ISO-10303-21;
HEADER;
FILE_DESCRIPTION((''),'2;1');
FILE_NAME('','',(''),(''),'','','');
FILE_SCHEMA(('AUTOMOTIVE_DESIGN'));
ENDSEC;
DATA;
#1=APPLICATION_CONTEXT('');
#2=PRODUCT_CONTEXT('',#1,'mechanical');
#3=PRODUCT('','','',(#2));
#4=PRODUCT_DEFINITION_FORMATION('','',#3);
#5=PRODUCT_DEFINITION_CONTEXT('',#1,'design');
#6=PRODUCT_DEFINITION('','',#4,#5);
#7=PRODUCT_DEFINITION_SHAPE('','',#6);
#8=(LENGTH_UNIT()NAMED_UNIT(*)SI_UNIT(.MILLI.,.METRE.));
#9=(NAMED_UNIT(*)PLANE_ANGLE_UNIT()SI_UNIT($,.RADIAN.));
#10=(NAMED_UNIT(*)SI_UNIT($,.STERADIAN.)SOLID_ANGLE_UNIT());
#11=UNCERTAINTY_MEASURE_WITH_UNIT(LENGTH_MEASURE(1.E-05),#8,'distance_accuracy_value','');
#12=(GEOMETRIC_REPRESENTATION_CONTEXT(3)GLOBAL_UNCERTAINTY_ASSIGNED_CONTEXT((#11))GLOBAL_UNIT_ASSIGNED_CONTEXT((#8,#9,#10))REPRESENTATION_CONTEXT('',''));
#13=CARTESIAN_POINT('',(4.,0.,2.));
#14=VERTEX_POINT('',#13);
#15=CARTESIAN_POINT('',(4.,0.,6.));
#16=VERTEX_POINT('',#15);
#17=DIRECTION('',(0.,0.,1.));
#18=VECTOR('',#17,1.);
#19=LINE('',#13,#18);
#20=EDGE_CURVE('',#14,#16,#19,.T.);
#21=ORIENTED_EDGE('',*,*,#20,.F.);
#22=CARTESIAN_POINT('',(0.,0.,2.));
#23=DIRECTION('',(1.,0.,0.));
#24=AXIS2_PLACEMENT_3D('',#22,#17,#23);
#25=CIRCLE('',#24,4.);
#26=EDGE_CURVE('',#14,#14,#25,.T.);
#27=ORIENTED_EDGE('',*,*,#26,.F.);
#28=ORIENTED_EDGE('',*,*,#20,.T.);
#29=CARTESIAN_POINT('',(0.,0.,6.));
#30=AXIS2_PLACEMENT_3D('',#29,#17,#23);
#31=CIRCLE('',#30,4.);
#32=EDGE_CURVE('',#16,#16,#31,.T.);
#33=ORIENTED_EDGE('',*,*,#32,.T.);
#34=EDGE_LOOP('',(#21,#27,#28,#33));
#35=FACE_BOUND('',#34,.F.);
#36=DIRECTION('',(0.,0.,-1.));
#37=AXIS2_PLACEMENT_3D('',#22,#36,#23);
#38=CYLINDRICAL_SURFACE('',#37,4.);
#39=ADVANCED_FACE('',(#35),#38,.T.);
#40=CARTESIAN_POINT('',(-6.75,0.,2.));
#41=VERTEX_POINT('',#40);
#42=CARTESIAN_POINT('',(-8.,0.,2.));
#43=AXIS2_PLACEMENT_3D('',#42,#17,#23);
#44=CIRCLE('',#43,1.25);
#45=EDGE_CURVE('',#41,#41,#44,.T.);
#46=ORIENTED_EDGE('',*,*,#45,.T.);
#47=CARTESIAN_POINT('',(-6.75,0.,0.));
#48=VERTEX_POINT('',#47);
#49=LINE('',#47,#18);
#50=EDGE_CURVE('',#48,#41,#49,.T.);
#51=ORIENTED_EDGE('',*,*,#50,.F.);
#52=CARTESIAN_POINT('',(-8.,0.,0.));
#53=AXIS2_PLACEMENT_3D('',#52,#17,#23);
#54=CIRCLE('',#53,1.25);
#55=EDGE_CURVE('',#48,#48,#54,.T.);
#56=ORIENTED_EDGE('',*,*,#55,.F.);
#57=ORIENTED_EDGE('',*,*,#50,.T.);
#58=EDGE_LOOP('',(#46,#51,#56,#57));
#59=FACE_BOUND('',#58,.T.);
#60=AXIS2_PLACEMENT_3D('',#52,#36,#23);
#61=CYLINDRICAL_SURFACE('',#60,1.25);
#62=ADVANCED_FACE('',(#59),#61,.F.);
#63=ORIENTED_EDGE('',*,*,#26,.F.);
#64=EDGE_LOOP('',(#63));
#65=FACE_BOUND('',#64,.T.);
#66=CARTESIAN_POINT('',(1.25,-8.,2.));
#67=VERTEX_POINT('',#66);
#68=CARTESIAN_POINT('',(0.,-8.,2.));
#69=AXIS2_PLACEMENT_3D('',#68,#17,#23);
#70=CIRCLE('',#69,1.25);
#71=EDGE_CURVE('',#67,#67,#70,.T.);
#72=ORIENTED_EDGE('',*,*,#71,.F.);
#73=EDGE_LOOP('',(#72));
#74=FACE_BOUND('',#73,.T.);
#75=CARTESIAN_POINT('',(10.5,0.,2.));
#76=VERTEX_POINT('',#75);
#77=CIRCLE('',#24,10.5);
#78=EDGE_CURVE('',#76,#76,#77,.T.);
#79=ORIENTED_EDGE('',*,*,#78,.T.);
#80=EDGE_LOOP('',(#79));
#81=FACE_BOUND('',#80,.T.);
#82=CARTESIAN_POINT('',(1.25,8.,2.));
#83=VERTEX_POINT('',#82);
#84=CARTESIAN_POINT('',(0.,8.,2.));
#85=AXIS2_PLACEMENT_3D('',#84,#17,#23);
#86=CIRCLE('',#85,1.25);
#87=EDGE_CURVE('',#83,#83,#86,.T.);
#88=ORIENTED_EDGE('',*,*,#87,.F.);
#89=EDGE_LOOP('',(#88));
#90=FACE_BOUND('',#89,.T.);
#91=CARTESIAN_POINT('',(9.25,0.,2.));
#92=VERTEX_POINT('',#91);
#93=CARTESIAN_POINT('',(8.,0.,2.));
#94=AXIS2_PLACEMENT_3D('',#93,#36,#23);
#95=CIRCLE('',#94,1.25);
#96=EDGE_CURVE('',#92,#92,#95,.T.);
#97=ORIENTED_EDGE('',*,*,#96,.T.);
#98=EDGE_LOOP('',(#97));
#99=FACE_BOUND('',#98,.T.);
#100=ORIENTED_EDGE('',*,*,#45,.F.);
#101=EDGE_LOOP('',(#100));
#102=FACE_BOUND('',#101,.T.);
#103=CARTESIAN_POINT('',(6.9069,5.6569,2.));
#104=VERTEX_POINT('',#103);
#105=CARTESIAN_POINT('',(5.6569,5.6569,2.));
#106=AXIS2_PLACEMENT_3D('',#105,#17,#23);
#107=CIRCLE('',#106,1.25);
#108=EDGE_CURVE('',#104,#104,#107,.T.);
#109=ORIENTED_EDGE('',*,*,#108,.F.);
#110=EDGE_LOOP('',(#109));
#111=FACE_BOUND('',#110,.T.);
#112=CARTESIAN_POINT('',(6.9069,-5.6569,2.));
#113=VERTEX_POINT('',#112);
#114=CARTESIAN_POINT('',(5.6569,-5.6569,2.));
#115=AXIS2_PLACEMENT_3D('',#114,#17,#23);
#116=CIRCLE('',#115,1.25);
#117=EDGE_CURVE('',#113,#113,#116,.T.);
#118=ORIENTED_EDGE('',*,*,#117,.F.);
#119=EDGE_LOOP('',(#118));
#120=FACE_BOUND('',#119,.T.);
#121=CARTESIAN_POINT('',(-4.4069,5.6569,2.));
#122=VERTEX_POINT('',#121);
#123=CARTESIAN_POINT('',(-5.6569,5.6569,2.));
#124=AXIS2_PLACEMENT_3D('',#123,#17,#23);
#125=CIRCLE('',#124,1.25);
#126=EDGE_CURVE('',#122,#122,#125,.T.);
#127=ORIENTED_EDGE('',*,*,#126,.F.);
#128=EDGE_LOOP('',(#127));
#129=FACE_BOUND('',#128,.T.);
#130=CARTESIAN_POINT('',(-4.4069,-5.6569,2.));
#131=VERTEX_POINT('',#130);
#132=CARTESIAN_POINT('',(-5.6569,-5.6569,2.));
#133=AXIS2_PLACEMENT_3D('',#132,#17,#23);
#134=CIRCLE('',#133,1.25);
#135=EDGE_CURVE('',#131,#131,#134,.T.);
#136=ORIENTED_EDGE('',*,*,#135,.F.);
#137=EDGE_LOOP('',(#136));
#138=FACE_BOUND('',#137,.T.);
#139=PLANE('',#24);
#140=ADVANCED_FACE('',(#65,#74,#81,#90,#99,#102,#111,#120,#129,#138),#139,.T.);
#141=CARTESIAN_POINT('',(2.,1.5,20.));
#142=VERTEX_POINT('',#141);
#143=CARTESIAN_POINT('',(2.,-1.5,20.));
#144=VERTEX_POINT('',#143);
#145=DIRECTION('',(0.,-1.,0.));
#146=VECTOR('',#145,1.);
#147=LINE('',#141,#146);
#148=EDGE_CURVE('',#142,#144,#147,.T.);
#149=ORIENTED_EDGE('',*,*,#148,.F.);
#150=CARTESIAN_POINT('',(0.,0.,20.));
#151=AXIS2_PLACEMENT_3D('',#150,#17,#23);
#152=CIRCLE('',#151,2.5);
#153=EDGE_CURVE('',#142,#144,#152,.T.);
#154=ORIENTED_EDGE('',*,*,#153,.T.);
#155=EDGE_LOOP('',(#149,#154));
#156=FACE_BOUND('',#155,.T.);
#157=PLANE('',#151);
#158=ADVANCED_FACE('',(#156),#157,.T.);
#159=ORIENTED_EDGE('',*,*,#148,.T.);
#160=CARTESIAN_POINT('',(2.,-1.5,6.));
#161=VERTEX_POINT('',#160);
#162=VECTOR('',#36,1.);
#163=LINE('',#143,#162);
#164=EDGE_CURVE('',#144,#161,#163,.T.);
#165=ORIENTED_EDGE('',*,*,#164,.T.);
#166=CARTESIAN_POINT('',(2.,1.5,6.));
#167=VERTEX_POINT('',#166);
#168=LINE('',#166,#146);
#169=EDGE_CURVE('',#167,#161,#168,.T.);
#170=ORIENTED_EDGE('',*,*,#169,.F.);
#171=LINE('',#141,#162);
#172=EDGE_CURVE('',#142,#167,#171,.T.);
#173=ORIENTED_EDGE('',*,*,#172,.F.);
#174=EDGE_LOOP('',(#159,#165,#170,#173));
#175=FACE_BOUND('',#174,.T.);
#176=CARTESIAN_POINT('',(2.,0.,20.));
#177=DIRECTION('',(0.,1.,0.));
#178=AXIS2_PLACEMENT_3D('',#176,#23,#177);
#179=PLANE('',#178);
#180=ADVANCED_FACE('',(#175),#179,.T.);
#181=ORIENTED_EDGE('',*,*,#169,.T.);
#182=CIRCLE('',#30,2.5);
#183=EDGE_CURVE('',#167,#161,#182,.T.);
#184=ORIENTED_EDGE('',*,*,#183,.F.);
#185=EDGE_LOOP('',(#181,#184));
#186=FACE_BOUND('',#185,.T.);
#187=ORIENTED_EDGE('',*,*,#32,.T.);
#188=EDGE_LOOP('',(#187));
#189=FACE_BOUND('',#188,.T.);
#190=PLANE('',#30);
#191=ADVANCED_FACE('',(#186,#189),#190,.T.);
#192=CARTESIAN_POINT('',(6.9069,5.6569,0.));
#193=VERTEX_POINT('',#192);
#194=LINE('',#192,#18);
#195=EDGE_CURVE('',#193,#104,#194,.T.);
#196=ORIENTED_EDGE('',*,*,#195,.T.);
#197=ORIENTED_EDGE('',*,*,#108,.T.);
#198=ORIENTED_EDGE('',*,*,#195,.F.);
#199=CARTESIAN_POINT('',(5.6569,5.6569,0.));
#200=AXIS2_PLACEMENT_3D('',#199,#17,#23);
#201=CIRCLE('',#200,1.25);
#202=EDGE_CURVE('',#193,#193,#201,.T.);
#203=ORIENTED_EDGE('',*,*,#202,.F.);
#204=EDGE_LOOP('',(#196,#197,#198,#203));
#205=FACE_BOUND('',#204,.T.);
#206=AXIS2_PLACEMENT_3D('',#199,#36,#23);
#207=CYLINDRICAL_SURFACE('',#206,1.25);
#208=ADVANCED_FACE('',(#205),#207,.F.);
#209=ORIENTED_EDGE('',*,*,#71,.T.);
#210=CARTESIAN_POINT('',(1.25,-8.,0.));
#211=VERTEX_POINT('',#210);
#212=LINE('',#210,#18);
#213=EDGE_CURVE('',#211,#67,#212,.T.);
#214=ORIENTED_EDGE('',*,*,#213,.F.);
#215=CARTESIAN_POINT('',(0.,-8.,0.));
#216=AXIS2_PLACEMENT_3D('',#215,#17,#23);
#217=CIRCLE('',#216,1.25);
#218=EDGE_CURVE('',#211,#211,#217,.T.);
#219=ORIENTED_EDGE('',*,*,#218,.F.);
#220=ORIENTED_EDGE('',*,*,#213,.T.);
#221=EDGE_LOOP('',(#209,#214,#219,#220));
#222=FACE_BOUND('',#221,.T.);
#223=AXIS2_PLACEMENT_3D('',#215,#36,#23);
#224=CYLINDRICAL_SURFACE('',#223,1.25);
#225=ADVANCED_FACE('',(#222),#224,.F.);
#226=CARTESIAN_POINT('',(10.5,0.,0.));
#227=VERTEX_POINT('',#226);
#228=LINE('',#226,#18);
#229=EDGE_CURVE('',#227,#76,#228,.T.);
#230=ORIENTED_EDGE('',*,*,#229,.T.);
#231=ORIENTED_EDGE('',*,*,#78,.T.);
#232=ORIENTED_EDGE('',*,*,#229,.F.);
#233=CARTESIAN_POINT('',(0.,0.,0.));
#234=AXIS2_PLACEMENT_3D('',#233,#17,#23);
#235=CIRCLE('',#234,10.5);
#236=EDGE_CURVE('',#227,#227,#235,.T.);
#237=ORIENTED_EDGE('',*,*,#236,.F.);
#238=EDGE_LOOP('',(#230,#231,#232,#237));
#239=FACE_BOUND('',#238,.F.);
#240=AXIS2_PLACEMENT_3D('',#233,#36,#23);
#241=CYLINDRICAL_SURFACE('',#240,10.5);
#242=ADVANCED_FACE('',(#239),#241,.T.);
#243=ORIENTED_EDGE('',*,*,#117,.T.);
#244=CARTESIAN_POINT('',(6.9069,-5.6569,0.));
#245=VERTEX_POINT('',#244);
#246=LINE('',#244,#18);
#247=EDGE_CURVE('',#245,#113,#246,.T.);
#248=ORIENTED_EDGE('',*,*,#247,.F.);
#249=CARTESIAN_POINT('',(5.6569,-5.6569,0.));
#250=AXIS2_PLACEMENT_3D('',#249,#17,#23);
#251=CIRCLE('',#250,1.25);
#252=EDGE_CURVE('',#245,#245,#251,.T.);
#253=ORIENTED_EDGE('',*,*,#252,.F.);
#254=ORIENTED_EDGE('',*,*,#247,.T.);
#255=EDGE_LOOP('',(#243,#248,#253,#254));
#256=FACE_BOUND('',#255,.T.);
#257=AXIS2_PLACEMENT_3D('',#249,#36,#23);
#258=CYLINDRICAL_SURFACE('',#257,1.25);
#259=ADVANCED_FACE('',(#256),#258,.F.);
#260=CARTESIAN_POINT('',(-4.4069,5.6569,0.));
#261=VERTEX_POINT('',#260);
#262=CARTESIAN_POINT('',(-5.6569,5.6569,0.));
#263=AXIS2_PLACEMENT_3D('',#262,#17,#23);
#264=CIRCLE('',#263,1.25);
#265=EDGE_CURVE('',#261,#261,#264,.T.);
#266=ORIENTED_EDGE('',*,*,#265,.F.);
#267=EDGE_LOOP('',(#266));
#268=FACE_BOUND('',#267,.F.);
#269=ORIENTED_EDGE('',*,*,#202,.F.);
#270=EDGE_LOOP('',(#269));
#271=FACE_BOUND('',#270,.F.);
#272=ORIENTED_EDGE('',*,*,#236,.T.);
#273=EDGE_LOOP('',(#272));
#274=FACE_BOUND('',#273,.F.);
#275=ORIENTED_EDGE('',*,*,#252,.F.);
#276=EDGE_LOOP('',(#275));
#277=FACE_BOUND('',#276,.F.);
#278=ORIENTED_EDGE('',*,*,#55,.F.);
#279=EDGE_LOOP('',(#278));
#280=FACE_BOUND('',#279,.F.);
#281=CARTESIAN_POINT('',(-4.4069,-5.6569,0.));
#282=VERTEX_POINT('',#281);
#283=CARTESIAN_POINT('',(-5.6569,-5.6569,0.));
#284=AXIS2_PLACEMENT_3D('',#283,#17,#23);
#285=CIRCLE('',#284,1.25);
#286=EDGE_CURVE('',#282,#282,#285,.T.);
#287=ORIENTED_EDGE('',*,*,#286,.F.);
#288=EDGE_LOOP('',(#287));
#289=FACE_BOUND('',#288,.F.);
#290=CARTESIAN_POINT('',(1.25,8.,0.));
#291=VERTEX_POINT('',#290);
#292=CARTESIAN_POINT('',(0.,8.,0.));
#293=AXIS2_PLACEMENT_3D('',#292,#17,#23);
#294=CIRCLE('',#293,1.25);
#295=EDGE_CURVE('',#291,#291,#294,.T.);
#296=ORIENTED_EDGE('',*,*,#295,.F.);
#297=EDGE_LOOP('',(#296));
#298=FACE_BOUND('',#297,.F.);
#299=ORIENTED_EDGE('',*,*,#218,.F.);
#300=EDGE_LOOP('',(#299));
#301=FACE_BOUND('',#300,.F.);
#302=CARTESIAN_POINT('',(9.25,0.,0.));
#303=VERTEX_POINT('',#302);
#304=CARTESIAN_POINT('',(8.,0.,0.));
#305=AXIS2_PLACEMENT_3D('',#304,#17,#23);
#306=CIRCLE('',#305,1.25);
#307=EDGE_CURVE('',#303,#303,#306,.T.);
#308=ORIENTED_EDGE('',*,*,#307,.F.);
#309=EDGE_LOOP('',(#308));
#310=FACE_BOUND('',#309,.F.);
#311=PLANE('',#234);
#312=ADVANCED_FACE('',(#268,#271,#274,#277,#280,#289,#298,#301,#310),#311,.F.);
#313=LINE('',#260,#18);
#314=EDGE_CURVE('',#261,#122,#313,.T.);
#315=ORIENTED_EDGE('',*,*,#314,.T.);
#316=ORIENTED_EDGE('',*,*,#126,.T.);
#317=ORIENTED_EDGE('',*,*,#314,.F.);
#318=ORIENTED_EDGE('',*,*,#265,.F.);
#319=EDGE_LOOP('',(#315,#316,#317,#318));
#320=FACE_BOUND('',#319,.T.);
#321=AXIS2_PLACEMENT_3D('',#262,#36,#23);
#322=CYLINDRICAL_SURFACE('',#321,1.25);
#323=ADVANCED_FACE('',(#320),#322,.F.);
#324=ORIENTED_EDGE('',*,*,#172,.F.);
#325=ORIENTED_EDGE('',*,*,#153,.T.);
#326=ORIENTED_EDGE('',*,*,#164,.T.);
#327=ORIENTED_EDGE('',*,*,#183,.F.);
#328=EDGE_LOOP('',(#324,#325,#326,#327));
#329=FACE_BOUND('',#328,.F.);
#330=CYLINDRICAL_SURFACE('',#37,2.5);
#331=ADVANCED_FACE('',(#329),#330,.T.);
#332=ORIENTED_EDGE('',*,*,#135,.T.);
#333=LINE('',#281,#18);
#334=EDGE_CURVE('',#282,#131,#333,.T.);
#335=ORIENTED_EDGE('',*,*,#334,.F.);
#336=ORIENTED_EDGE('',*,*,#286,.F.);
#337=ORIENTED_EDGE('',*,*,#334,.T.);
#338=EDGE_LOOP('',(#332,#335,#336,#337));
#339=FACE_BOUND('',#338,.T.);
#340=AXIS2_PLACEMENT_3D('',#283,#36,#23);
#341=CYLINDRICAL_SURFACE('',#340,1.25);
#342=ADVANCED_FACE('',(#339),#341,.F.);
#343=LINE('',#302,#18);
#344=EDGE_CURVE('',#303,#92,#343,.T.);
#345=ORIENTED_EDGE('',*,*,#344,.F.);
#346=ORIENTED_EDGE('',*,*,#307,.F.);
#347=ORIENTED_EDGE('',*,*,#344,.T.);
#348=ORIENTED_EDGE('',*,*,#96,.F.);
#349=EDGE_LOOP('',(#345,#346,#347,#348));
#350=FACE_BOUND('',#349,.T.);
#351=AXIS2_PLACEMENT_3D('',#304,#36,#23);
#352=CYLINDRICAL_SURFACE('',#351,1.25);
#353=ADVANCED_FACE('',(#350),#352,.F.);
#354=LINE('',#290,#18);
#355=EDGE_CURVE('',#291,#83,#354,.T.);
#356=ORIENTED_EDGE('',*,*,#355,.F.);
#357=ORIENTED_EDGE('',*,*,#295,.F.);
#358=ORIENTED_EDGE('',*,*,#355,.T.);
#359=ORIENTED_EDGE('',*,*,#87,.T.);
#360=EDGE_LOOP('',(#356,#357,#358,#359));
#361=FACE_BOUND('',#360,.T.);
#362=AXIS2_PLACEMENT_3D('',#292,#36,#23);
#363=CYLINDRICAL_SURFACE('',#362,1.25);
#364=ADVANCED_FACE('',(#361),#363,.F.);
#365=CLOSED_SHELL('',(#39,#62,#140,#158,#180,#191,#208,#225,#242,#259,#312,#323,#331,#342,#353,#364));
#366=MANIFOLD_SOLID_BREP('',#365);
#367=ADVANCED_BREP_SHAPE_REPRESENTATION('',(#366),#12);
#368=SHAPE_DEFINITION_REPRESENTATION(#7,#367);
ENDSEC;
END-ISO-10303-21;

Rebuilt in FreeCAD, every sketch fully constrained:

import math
import FreeCAD as App
import Part
import Sketcher
from FreeCAD import Vector

doc = App.newDocument("Part")
body = doc.addObject("PartDesign::Body", "Body")

# Sketch on XY plane
sketch1 = body.newObject("Sketcher::SketchObject", "Sketch")
sketch1.AttachmentSupport = (doc.getObject("XY_Plane"), [""])
sketch1.MapMode = "FlatFace"
sketch1.addGeometry(Part.Circle(Vector(0, 0, 0), Vector(0, 0, 1), 10.5), False)
sketch1.addGeometry(Part.Circle(Vector(-5.7, -5.7, 0), Vector(0, 0, 1), 1.2), False)
sketch1.addGeometry(Part.Circle(Vector(0, -8, 0), Vector(0, 0, 1), 1.2), False)
sketch1.addGeometry(Part.Circle(Vector(5.7, -5.7, 0), Vector(0, 0, 1), 1.2), False)
sketch1.addGeometry(Part.Circle(Vector(-8, 0, 0), Vector(0, 0, 1), 1.2), False)
sketch1.addGeometry(Part.Circle(Vector(-5.7, 5.7, 0), Vector(0, 0, 1), 1.2), False)
sketch1.addGeometry(Part.Circle(Vector(8, 0, 0), Vector(0, 0, 1), 1.2), False)
sketch1.addGeometry(Part.Circle(Vector(0, 8, 0), Vector(0, 0, 1), 1.2), False)
sketch1.addGeometry(Part.Circle(Vector(5.7, 5.7, 0), Vector(0, 0, 1), 1.2), False)
sketch1.addConstraint(Sketcher.Constraint("Coincident", 0, 3, -1, 1))
sketch1.addConstraint(Sketcher.Constraint("Equal", 1, 2))
sketch1.addConstraint(Sketcher.Constraint("Equal", 2, 3))
sketch1.addConstraint(Sketcher.Constraint("Equal", 3, 4))
sketch1.addConstraint(Sketcher.Constraint("Equal", 4, 5))
sketch1.addConstraint(Sketcher.Constraint("Equal", 5, 6))
sketch1.addConstraint(Sketcher.Constraint("Equal", 6, 7))
sketch1.addConstraint(Sketcher.Constraint("Equal", 7, 8))
sketch1.addConstraint(Sketcher.Constraint("Symmetric", 3, 3, 5, 3, -1, 1))
sketch1.addConstraint(Sketcher.Constraint("Symmetric", 4, 3, 6, 3, -1, 1))
sketch1.addConstraint(Sketcher.Constraint("Symmetric", 2, 3, 7, 3, -1, 1))
sketch1.addConstraint(Sketcher.Constraint("Symmetric", 1, 3, 8, 3, -1, 1))
sketch1.addConstraint(Sketcher.Constraint("Symmetric", 1, 3, 3, 3, -2))
sketch1.addConstraint(Sketcher.Constraint("PointOnObject", 2, 3, -2))
sketch1.addConstraint(Sketcher.Constraint("PointOnObject", 4, 3, -1))
sketch1.addConstraint(Sketcher.Constraint("Diameter", 0, 21.0))
sketch1.addConstraint(Sketcher.Constraint("Diameter", 1, 2.5))
sketch1.addConstraint(Sketcher.Constraint("DistanceY", 2, 3, -1, 1, 8.0))
sketch1.addConstraint(Sketcher.Constraint("DistanceX", 4, 3, -1, 1, 8.0))
sketch1.addConstraint(Sketcher.Constraint("DistanceX", 1, 3, -1, 1, 5.657))
sketch1.addConstraint(Sketcher.Constraint("DistanceY", 1, 3, -1, 1, 5.657))
pad1 = body.newObject("PartDesign::Pad", "Pad")
pad1.Profile = sketch1
pad1.Length = 2

# Sketch on XY plane
sketch2 = body.newObject("Sketcher::SketchObject", "Sketch001")
sketch2.AttachmentSupport = (doc.getObject("XY_Plane"), [""])
sketch2.MapMode = "FlatFace"
sketch2.AttachmentOffset = App.Placement(Vector(0, 0, 2), App.Rotation())
sketch2.addGeometry(Part.Circle(Vector(0, 0, 0), Vector(0, 0, 1), 2.5), False)
sketch2.addConstraint(Sketcher.Constraint("Coincident", 0, 3, -1, 1))
sketch2.addConstraint(Sketcher.Constraint("Diameter", 0, 5.0))
pad2 = body.newObject("PartDesign::Pad", "Pad001")
pad2.Profile = sketch2
pad2.Length = 18

# Sketch on XY plane
sketch3 = body.newObject("Sketcher::SketchObject", "Sketch002")
sketch3.AttachmentSupport = (doc.getObject("XY_Plane"), [""])
sketch3.MapMode = "FlatFace"
sketch3.AttachmentOffset = App.Placement(Vector(0, 0, 2), App.Rotation())
sketch3.addGeometry(Part.Circle(Vector(0, 0, 0), Vector(0, 0, 1), 4), False)
sketch3.addGeometry(Part.Circle(Vector(0, 0, 0), Vector(0, 0, 1), 2.5), False)
sketch3.addConstraint(Sketcher.Constraint("Coincident", 0, 3, -1, 1))
sketch3.addConstraint(Sketcher.Constraint("Coincident", 1, 3, -1, 1))
sketch3.addConstraint(Sketcher.Constraint("Diameter", 0, 8.0))
sketch3.addConstraint(Sketcher.Constraint("Diameter", 1, 5.0))
pad3 = body.newObject("PartDesign::Pad", "Pad002")
pad3.Profile = sketch3
pad3.Length = 4

# Sketch on XY plane
sketch4 = body.newObject("Sketcher::SketchObject", "Sketch003")
sketch4.AttachmentSupport = (doc.getObject("XY_Plane"), [""])
sketch4.MapMode = "FlatFace"
sketch4.AttachmentOffset = App.Placement(Vector(0, 0, 20), App.Rotation())
sketch4.addGeometry(Part.LineSegment(Vector(2, 1.5, 0), Vector(2, -1.5, 0)), False)
sketch4.addGeometry(Part.ArcOfCircle(Part.Circle(Vector(0, 0, 0), Vector(0, 0, 1), 2.5), math.radians(-37), math.radians(37)), False)
sketch4.addConstraint(Sketcher.Constraint("Coincident", 0, 1, 1, 2))
sketch4.addConstraint(Sketcher.Constraint("Coincident", 1, 1, 0, 2))
sketch4.addConstraint(Sketcher.Constraint("Vertical", 0))
sketch4.addConstraint(Sketcher.Constraint("Coincident", 1, 3, -1, 1))
sketch4.addConstraint(Sketcher.Constraint("DistanceX", -1, 1, 0, 1, 2.0))
sketch4.addConstraint(Sketcher.Constraint("Radius", 1, 2.5))
pocket1 = body.newObject("PartDesign::Pocket", "Pocket")
pocket1.Profile = sketch4
pocket1.Length = 14

doc.recompute()
